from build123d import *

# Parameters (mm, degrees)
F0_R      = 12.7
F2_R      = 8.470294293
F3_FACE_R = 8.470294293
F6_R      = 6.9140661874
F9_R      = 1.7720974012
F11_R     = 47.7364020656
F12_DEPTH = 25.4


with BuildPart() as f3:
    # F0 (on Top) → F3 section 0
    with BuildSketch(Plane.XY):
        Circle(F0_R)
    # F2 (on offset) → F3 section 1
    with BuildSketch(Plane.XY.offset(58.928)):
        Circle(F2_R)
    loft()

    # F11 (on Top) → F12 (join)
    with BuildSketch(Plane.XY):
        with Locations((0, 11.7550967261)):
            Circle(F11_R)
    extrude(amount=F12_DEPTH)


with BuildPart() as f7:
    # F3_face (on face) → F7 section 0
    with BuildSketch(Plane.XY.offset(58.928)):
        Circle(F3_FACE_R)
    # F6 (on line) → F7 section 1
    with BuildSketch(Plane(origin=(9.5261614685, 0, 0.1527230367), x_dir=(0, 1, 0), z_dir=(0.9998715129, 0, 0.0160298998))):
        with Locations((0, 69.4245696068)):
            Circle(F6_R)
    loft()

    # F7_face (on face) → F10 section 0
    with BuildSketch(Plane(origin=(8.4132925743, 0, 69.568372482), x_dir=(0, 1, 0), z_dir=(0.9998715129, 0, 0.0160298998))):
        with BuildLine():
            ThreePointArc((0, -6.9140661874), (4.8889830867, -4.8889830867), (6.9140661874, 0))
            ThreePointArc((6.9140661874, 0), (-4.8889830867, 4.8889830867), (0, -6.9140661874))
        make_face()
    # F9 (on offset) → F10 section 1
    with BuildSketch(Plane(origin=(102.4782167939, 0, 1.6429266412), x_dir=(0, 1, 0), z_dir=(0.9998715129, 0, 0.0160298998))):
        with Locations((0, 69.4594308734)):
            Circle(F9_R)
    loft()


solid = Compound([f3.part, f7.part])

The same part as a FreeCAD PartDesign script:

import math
import FreeCAD as App
import Part
import Sketcher
from FreeCAD import Vector
Q = App.Units.Quantity

doc = App.newDocument("Part")
body = doc.addObject("PartDesign::Body", "Body")

# Sketch on XY plane
sketch1 = body.newObject("Sketcher::SketchObject", "Sketch")
sketch1.AttachmentSupport = (doc.getObject("XY_Plane"), [""])
sketch1.MapMode = "FlatFace"
sketch1.addGeometry(Part.Circle(Vector(0, 0, 0), Vector(0, 0, 1), 13), False)
sketch1.addConstraint([
    Sketcher.Constraint("Coincident", 0, 3, -1, 1),
    Sketcher.Constraint("Diameter", 0, Q("1 in")),
])

# Sketch on XY plane
sketch2 = body.newObject("Sketcher::SketchObject", "Sketch001")
sketch2.AttachmentSupport = (doc.getObject("XY_Plane"), [""])
sketch2.MapMode = "FlatFace"
sketch2.AttachmentOffset = App.Placement(Vector(0, 0, 2.32 * 25.4), App.Rotation())
sketch2.addGeometry(Part.Circle(Vector(0, 0, 0), Vector(0, 0, 1), 8), False)
sketch2.addConstraint([
    Sketcher.Constraint("Coincident", 0, 3, -1, 1),
    Sketcher.Constraint("Diameter", 0, Q("16.940589 mm")),
])

additiveloft = body.newObject("PartDesign::AdditiveLoft", "AdditiveLoft")
additiveloft.Profile = sketch1
additiveloft.Sections = [sketch2]

# Sketch on XY plane
sketch3 = body.newObject("Sketcher::SketchObject", "Sketch002")
sketch3.AttachmentSupport = (doc.getObject("XY_Plane"), [""])
sketch3.MapMode = "FlatFace"
sketch3.addGeometry(Part.Circle(Vector(0, 12, 0), Vector(0, 0, 1), 48), False)
sketch3.addConstraint([
    Sketcher.Constraint("PointOnObject", 0, 3, -2),
    Sketcher.Constraint("Diameter", 0, Q("95.472804 mm")),
    Sketcher.Constraint("DistanceY", -1, 1, 0, 3, Q("11.755097 mm")),
])
pad1 = body.newObject("PartDesign::Pad", "Pad")
pad1.Profile = sketch3
pad1.Length = Q("1 in")
body2 = doc.addObject("PartDesign::Body", "Body001")

# Sketch on XY plane
sketch4 = body2.newObject("Sketcher::SketchObject", "Sketch003")
sketch4.AttachmentSupport = (doc.getObject("XY_Plane001"), [""])
sketch4.MapMode = "FlatFace"
sketch4.AttachmentOffset = App.Placement(Vector(0, 0, 2.32 * 25.4), App.Rotation())
sketch4.addGeometry(Part.Circle(Vector(0, 0, 0), Vector(0, 0, 1), 8), False)
sketch4.addConstraint([
    Sketcher.Constraint("Coincident", 0, 3, -1, 1),
    Sketcher.Constraint("Diameter", 0, Q("16.940589 mm")),
])

# Sketch on an angled plane
sketch5 = body2.newObject("Sketcher::SketchObject", "Sketch004")
sketch5.Placement = App.Placement(Vector(9.526161, 0, 0.152723), App.Rotation(Vector(0, 1, 0), Vector(-0.0160299, 0, 0.999871513), Vector(0.999871513, 0, 0.0160299), "ZXY"))
sketch5.addGeometry(Part.Circle(Vector(0, 69, 0), Vector(0, 0, 1), 7), False)
sketch5.addConstraint([
    Sketcher.Constraint("PointOnObject", 0, 3, -2),
    Sketcher.Constraint("Diameter", 0, Q("13.828132 mm")),
    Sketcher.Constraint("DistanceY", -1, 1, 0, 3, Q("69.42457 mm")),
])

additiveloft2 = body2.newObject("PartDesign::AdditiveLoft", "AdditiveLoft001")
additiveloft2.Profile = sketch4
additiveloft2.Sections = [sketch5]

# Sketch on an angled plane
sketch6 = body2.newObject("Sketcher::SketchObject", "Sketch005")
sketch6.Placement = App.Placement(Vector(8.413293, 0, 69.568372), App.Rotation(Vector(0, 1, 0), Vector(-0.0160299, 0, 0.999871513), Vector(0.999871513, 0, 0.0160299), "ZXY"))
sketch6.addGeometry([
    Part.ArcOfCircle(Part.Circle(Vector(0, 0, 0), Vector(0, 0, 1), 7), math.radians(-90), math.radians(0)),
    Part.ArcOfCircle(Part.Circle(Vector(0, 0, 0), Vector(0, 0, 1), 7), math.radians(0), math.radians(270)),
], False)
sketch6.addConstraint([
    Sketcher.Constraint("Tangent", 0, 1, 1, 2),
    Sketcher.Constraint("Coincident", 1, 1, 0, 2),
    Sketcher.Constraint("Coincident", 0, 3, -1, 1),
    Sketcher.Constraint("PointOnObject", 0, 1, -2),
    Sketcher.Constraint("PointOnObject", 1, 1, -1),
    Sketcher.Constraint("Radius", 0, Q("6.914066 mm")),
])

# Sketch on an angled plane
sketch7 = body2.newObject("Sketcher::SketchObject", "Sketch006")
sketch7.Placement = App.Placement(Vector(102.478217, 0, 1.642927), App.Rotation(Vector(0, 1, 0), Vector(-0.0160299, 0, 0.999871513), Vector(0.999871513, 0, 0.0160299), "ZXY"))
sketch7.addGeometry(Part.Circle(Vector(0, 69.5, 0), Vector(0, 0, 1), 1.8), False)
sketch7.addConstraint([
    Sketcher.Constraint("PointOnObject", 0, 3, -2),
    Sketcher.Constraint("Diameter", 0, Q("3.544195 mm")),
    Sketcher.Constraint("DistanceY", -1, 1, 0, 3, Q("69.459431 mm")),
])

additiveloft3 = body2.newObject("PartDesign::AdditiveLoft", "AdditiveLoft002")
additiveloft3.Profile = sketch6
additiveloft3.Sections = [sketch7]

doc.recompute()
